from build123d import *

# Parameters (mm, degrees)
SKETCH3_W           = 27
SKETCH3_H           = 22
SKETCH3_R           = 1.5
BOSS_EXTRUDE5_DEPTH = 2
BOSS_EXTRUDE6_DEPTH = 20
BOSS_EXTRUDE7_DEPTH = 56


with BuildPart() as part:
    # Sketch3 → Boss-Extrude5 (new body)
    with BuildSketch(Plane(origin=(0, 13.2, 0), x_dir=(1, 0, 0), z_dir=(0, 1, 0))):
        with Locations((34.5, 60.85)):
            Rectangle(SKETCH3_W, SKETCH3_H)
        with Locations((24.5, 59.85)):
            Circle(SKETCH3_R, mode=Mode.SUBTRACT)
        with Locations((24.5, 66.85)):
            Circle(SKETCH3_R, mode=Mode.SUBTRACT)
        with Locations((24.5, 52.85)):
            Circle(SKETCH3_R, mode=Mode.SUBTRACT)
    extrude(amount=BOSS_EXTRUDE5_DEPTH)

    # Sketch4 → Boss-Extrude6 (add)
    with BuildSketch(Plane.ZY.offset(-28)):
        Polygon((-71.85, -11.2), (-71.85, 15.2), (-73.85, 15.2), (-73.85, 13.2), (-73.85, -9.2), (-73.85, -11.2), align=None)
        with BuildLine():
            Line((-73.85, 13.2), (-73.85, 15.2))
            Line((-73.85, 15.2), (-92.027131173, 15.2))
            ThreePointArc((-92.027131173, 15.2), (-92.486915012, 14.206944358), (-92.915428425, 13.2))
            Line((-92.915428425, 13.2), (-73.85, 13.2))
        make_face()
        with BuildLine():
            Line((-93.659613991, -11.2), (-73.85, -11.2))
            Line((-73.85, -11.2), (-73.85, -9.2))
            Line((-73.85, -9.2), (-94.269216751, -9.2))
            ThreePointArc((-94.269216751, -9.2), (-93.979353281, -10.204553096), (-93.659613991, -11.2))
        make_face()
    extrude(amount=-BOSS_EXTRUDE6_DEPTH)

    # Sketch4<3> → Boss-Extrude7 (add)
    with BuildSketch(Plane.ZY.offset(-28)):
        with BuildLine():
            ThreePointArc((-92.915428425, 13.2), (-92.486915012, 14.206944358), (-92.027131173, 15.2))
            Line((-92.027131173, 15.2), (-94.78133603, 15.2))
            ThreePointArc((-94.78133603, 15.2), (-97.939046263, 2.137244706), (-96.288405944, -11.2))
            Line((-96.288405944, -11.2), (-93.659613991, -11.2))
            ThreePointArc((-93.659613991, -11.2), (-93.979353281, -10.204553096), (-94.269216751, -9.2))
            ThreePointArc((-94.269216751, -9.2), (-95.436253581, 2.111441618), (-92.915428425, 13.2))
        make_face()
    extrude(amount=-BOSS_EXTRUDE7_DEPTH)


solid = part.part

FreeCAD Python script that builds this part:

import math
import FreeCAD as App
import Part
import Sketcher

V = App.Vector


def add_polygon(sketch, points):
    """Adds a closed chain of lines whose ends are joined by coincident constraints."""
    first, n = sketch.GeometryCount, len(points)
    for a, b in zip(points, points[1:] + points[:1]):
        sketch.addGeometry(Part.LineSegment(App.Vector(*a, 0), App.Vector(*b, 0)), False)
    for i in range(n):
        sketch.addConstraint(Sketcher.Constraint("Coincident", first + i, 2, first + (i + 1) % n, 1))

doc = App.newDocument("Part")
params = doc.addObject("Spreadsheet::Sheet", "Params")
for row, (alias, value) in enumerate([
    ("sketch1_diameter", "3 mm"),
    ("sketch1_width", "27 mm"),
    ("sketch1_height", "22 mm"),
    ("pad1_length", "2 mm"),
    ("sketch2_radius", "35 mm"),
    ("sketch2_width", "26.4 mm"),
    ("sketch2_width2", "22.4 mm"),
    ("pad2_length", "20 mm"),
    ("sketch3_radius", "35 mm"),
    ("sketch3_radius2", "37.5 mm"),
    ("pad3_length", "56 mm"),
], start=1):
    params.set(f"A{row}", alias)
    params.set(f"B{row}", "=" + value)
    params.setAlias(f"B{row}", alias)

body = doc.addObject("PartDesign::Body", "Body")

sketch1 = doc.addObject("Sketcher::SketchObject", "Sketch")
body.addObject(sketch1)
sketch1.AttachmentSupport = (doc.XZ_Plane, [""])
sketch1.MapMode = "FlatFace"
sketch1.AttachmentOffset = App.Placement(V(0, 0, -13.2), App.Rotation())
add_polygon(sketch1, [(21, -71.85), (21, -49.85), (48, -49.85), (48, -71.85)])
sketch1.addGeometry(Part.Circle(V(24.5, -52.85, 0), V(0, 0, 1), 1.5), False)
sketch1.addGeometry(Part.Circle(V(24.5, -59.85, 0), V(0, 0, 1), 1.5), False)
sketch1.addGeometry(Part.Circle(V(24.5, -66.85, 0), V(0, 0, 1), 1.5), False)
sketch1.addConstraint(Sketcher.Constraint("Vertical", 0))
sketch1.addConstraint(Sketcher.Constraint("Horizontal", 1))
sketch1.addConstraint(Sketcher.Constraint("Vertical", 2))
sketch1.addConstraint(Sketcher.Constraint("Horizontal", 3))
sketch1.addConstraint(Sketcher.Constraint("Equal", 4, 5))
sketch1.addConstraint(Sketcher.Constraint("Equal", 5, 6))
sketch1.addConstraint(Sketcher.Constraint("Vertical", 4, 3, 5, 3))
sketch1.addConstraint(Sketcher.Constraint("Vertical", 5, 3, 6, 3))
sketch1.addConstraint(Sketcher.Constraint("Diameter", 4, 3.0))
sketch1.addConstraint(Sketcher.Constraint("DistanceX", 1, 1, 1, 2, 27.0))
sketch1.addConstraint(Sketcher.Constraint("DistanceY", 0, 1, 0, 2, 22.0))
sketch1.addConstraint(Sketcher.Constraint("DistanceX", -1, 1, 0, 2, 21.0))
sketch1.addConstraint(Sketcher.Constraint("DistanceY", 5, 3, 4, 3, 7.0))
sketch1.addConstraint(Sketcher.Constraint("DistanceY", 6, 3, 5, 3, 7.0))
sketch1.addConstraint(Sketcher.Constraint("DistanceY", 4, 3, 0, 2, 3.0))
sketch1.addConstraint(Sketcher.Constraint("DistanceX", -1, 1, 4, 3, 24.5))
sketch1.addConstraint(Sketcher.Constraint("DistanceY", 4, 3, -1, 1, 52.85))
sketch1.setExpression("Constraints[12]", "Params.sketch1_diameter")
sketch1.setExpression("Constraints[13]", "Params.sketch1_width")
sketch1.setExpression("Constraints[14]", "Params.sketch1_height")
pad1 = doc.addObject("PartDesign::Pad", "Pad")
body.addObject(pad1)
pad1.Profile = sketch1
pad1.setExpression("Length", "Params.pad1_length")
pad1.Reversed = True

sketch2 = doc.addObject("Sketcher::SketchObject", "Sketch001")
body.addObject(sketch2)
sketch2.AttachmentSupport = (doc.YZ_Plane, [""])
sketch2.MapMode = "FlatFace"
sketch2.AttachmentOffset = App.Placement(V(0, 0, 28), App.Rotation())
sketch2.addGeometry(Part.LineSegment(V(-11.2, -71.85, 0), V(15.2, -71.85, 0)), False)
sketch2.addGeometry(Part.LineSegment(V(15.2, -71.85, 0), V(15.2, -92.027131, 0)), False)
sketch2.addGeometry(Part.ArcOfCircle(Part.Circle(V(0, -60.5, 0), V(0, 0, 1), 35), math.radians(-67.843183), math.radians(-64.260149)), False)
sketch2.addGeometry(Part.LineSegment(V(13.2, -92.915428, 0), V(13.2, -73.85, 0)), False)
sketch2.addGeometry(Part.LineSegment(V(13.2, -73.85, 0), V(-9.2, -73.85, 0)), False)
sketch2.addGeometry(Part.LineSegment(V(-9.2, -73.85, 0), V(-9.2, -94.269217, 0)), False)
sketch2.addGeometry(Part.ArcOfCircle(Part.Circle(V(0, -60.5, 0), V(0, 0, 1), 35), math.radians(-108.662925), math.radians(-105.239663)), False)
sketch2.addGeometry(Part.LineSegment(V(-11.2, -93.659614, 0), V(-11.2, -71.85, 0)), False)
sketch2.addConstraint(Sketcher.Constraint("Coincident", 0, 2, 1, 1))
sketch2.addConstraint(Sketcher.Constraint("Coincident", 1, 2, 2, 2))
sketch2.addConstraint(Sketcher.Constraint("Coincident", 2, 1, 3, 1))
sketch2.addConstraint(Sketcher.Constraint("Coincident", 3, 2, 4, 1))
sketch2.addConstraint(Sketcher.Constraint("Coincident", 4, 2, 5, 1))
sketch2.addConstraint(Sketcher.Constraint("Coincident", 5, 2, 6, 2))
sketch2.addConstraint(Sketcher.Constraint("Coincident", 6, 1, 7, 1))
sketch2.addConstraint(Sketcher.Constraint("Coincident", 7, 2, 0, 1))
sketch2.addConstraint(Sketcher.Constraint("Horizontal", 0))
sketch2.addConstraint(Sketcher.Constraint("Vertical", 1))
sketch2.addConstraint(Sketcher.Constraint("Vertical", 3))
sketch2.addConstraint(Sketcher.Constraint("Horizontal", 4))
sketch2.addConstraint(Sketcher.Constraint("Vertical", 5))
sketch2.addConstraint(Sketcher.Constraint("Vertical", 7))
sketch2.addConstraint(Sketcher.Constraint("Coincident", 6, 3, 2, 3))
sketch2.addConstraint(Sketcher.Constraint("Equal", 2, 6))
sketch2.addConstraint(Sketcher.Constraint("PointOnObject", 2, 3, -2))
sketch2.addConstraint(Sketcher.Constraint("Radius", 2, 35.0))
sketch2.addConstraint(Sketcher.Constraint("DistanceX", 0, 1, 0, 2, 26.4))
sketch2.addConstraint(Sketcher.Constraint("DistanceX", 4, 2, 4, 1, 22.4))
sketch2.addConstraint(Sketcher.Constraint("DistanceX", 2, 1, 1, 2, 2.0))
sketch2.addConstraint(Sketcher.Constraint("DistanceY", 3, 2, 0, 2, 2.0))
sketch2.addConstraint(Sketcher.Constraint("DistanceY", 2, 3, -1, 1, 60.5))
sketch2.addConstraint(Sketcher.Constraint("DistanceX", -1, 1, 0, 2, 15.2))
sketch2.addConstraint(Sketcher.Constraint("DistanceY", 0, 2, -1, 1, 71.85))
sketch2.setExpression("Constraints[17]", "Params.sketch2_radius")
sketch2.setExpression("Constraints[18]", "Params.sketch2_width")
sketch2.setExpression("Constraints[19]", "Params.sketch2_width2")
pad2 = doc.addObject("PartDesign::Pad", "Pad001")
body.addObject(pad2)
pad2.Profile = sketch2
pad2.setExpression("Length", "Params.pad2_length")

sketch3 = doc.addObject("Sketcher::SketchObject", "Sketch002")
body.addObject(sketch3)
sketch3.AttachmentSupport = (doc.YZ_Plane, [""])
sketch3.MapMode = "FlatFace"
sketch3.AttachmentOffset = App.Placement(V(0, 0, 28), App.Rotation())
sketch3.addGeometry(Part.ArcOfCircle(Part.Circle(V(0, -60.5, 0), V(0, 0, 1), 35), math.radians(-67.843183), math.radians(-64.260149)), False)
sketch3.addGeometry(Part.LineSegment(V(15.2, -92.027131, 0), V(15.2, -94.781336, 0)), False)
sketch3.addGeometry(Part.ArcOfCircle(Part.Circle(V(0, -60.5, 0), V(0, 0, 1), 37.5), math.radians(-107.377538), math.radians(-66.087983)), False)
sketch3.addGeometry(Part.LineSegment(V(-11.2, -96.288406, 0), V(-11.2, -93.659614, 0)), False)
sketch3.addGeometry(Part.ArcOfCircle(Part.Circle(V(0, -60.5, 0), V(0, 0, 1), 35), math.radians(-108.662925), math.radians(-105.239663)), False)
sketch3.addGeometry(Part.ArcOfCircle(Part.Circle(V(0, -60.5, 0), V(0, 0, 1), 35), math.radians(-105.239663), math.radians(-67.843183)), False)
sketch3.addConstraint(Sketcher.Constraint("Coincident", 0, 2, 1, 1))
sketch3.addConstraint(Sketcher.Constraint("Coincident", 1, 2, 2, 2))
sketch3.addConstraint(Sketcher.Constraint("Coincident", 2, 1, 3, 1))
sketch3.addConstraint(Sketcher.Constraint("Coincident", 3, 2, 4, 1))
sketch3.addConstraint(Sketcher.Constraint("Tangent", 4, 2, 5, 1))
sketch3.addConstraint(Sketcher.Constraint("Tangent", 5, 2, 0, 1))
sketch3.addConstraint(Sketcher.Constraint("Vertical", 1))
sketch3.addConstraint(Sketcher.Constraint("Vertical", 3))
sketch3.addConstraint(Sketcher.Constraint("Coincident", 2, 3, 0, 3))
sketch3.addConstraint(Sketcher.Constraint("Coincident", 4, 3, 0, 3))
sketch3.addConstraint(Sketcher.Constraint("PointOnObject", 0, 3, -2))
sketch3.addConstraint(Sketcher.Constraint("Radius", 0, 35.0))
sketch3.addConstraint(Sketcher.Constraint("Radius", 2, 37.5))
sketch3.addConstraint(Sketcher.Constraint("DistanceX", 3, 2, 4, 2, 2.0))
sketch3.addConstraint(Sketcher.Constraint("DistanceX", 5, 2, 0, 2, 2.0))
sketch3.addConstraint(Sketcher.Constraint("DistanceY", 0, 3, -1, 1, 60.5))
sketch3.addConstraint(Sketcher.Constraint("DistanceX", -1, 1, 0, 2, 15.2))
sketch3.addConstraint(Sketcher.Constraint("DistanceX", 2, 1, -1, 1, 11.2))
sketch3.setExpression("Constraints[11]", "Params.sketch3_radius")
sketch3.setExpression("Constraints[12]", "Params.sketch3_radius2")
pad3 = doc.addObject("PartDesign::Pad", "Pad002")
body.addObject(pad3)
pad3.Profile = sketch3
pad3.setExpression("Length", "Params.pad3_length")

doc.recompute()
